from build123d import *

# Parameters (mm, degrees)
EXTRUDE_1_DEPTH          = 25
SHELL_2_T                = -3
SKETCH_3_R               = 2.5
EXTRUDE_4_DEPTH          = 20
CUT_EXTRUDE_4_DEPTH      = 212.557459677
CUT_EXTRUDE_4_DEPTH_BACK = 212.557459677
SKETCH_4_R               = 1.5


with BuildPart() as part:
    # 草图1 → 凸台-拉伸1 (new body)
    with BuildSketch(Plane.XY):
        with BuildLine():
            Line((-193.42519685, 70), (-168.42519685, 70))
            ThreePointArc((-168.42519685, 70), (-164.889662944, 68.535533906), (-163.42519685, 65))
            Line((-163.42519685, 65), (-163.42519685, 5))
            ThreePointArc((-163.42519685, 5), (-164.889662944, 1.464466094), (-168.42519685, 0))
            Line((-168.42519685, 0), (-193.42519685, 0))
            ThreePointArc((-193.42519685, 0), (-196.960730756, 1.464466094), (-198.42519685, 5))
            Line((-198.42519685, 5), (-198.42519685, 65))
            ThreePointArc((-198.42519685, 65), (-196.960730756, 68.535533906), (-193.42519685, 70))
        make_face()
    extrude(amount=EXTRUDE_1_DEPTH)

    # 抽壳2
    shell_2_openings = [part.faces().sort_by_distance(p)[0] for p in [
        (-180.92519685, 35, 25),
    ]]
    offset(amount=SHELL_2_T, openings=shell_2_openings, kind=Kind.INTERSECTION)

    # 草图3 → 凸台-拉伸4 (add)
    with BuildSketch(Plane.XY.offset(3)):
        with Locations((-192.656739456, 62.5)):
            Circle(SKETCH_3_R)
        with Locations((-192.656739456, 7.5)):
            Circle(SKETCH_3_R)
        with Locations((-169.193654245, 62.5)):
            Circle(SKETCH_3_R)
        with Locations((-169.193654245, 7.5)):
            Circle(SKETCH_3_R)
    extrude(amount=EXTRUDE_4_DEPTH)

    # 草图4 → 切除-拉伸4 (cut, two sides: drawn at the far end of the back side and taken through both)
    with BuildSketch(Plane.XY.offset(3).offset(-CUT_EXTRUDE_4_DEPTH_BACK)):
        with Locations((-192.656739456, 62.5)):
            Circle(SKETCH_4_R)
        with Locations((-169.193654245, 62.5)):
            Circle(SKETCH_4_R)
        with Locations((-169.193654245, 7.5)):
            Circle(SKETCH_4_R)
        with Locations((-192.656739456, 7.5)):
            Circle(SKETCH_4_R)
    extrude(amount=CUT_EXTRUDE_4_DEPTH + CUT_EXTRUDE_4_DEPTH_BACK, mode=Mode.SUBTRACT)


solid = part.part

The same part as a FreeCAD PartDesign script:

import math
import FreeCAD as App
import Part
import Sketcher


def faces_at(feature, points):
    """Names of the faces that lie closest to the given points."""
    faces = feature.Shape.Faces
    near = lambda p: min(range(len(faces)), key=lambda i: faces[i].distToShape(Part.Vertex(*p))[0])
    return sorted({f"Face{near(p) + 1}" for p in points})

doc = App.newDocument("Part")
body = doc.addObject("PartDesign::Body", "Body")

# Sketch on XY plane
sketch1 = body.newObject("Sketcher::SketchObject", "Sketch")
sketch1.AttachmentSupport = (doc.getObject("XY_Plane"), [""])
sketch1.MapMode = "FlatFace"
sketch1.addGeometry([
    Part.LineSegment(App.Vector(-168, 70, 0), App.Vector(-193, 70, 0)),  # 0
    Part.ArcOfCircle(Part.Circle(App.Vector(-193, 65, 0), App.Vector(0, 0, 1), 5), math.radians(90), math.radians(180)),  # 1
    Part.LineSegment(App.Vector(-198, 65, 0), App.Vector(-198, 5, 0)),  # 2
    Part.ArcOfCircle(Part.Circle(App.Vector(-193, 5, 0), App.Vector(0, 0, 1), 5), math.radians(180), math.radians(270)),  # 3
    Part.LineSegment(App.Vector(-193, 0, 0), App.Vector(-168, 0, 0)),  # 4
    Part.ArcOfCircle(Part.Circle(App.Vector(-168, 5, 0), App.Vector(0, 0, 1), 5), math.radians(-90), math.radians(0)),  # 5
    Part.LineSegment(App.Vector(-163, 5, 0), App.Vector(-163, 65, 0)),  # 6
    Part.ArcOfCircle(Part.Circle(App.Vector(-168, 65, 0), App.Vector(0, 0, 1), 5), math.radians(0), math.radians(90)),  # 7
], False)
sketch1.addConstraint([
    Sketcher.Constraint("Tangent", 0, 2, 1, 1),
    Sketcher.Constraint("Tangent", 1, 2, 2, 1),
    Sketcher.Constraint("Tangent", 2, 2, 3, 1),
    Sketcher.Constraint("Tangent", 3, 2, 4, 1),
    Sketcher.Constraint("Tangent", 4, 2, 5, 1),
    Sketcher.Constraint("Tangent", 5, 2, 6, 1),
    Sketcher.Constraint("Tangent", 6, 2, 7, 1),
    Sketcher.Constraint("Tangent", 7, 2, 0, 1),
    Sketcher.Constraint("Horizontal", 0),
    Sketcher.Constraint("Vertical", 2),
    Sketcher.Constraint("Horizontal", 4),
    Sketcher.Constraint("Vertical", 6),
    Sketcher.Constraint("Equal", 1, 3),
    Sketcher.Constraint("Equal", 3, 5),
    Sketcher.Constraint("Equal", 5, 7),
    Sketcher.Constraint("PointOnObject", 3, 2, -1),
    Sketcher.Constraint("Radius", 1, 5.0),
    Sketcher.Constraint("DistanceX", 0, 2, 0, 1, 25.0),
    Sketcher.Constraint("DistanceY", 2, 2, 2, 1, 60.0),
    Sketcher.Constraint("DistanceX", 1, 3, -1, 1, 193.425197),
])
pad1 = body.newObject("PartDesign::Pad", "Pad")
pad1.Profile = sketch1
pad1.Length = 25
doc.recompute()

thickness = body.newObject("PartDesign::Thickness", "Thickness")
thickness.Base = (pad1, faces_at(pad1, [(-180.925, 35, 25)]))
thickness.Value = 3
thickness.Reversed = True
thickness.Join = "Intersection"

# Sketch on XY plane
sketch2 = body.newObject("Sketcher::SketchObject", "Sketch001")
sketch2.AttachmentSupport = (doc.getObject("XY_Plane"), [""])
sketch2.MapMode = "FlatFace"
sketch2.AttachmentOffset = App.Placement(App.Vector(0, 0, 3), App.Rotation())
sketch2.addGeometry([
    Part.Circle(App.Vector(-192.7, 62.5, 0), App.Vector(0, 0, 1), 2.5),
    Part.Circle(App.Vector(-192.7, 7.5, 0), App.Vector(0, 0, 1), 2.5),
    Part.Circle(App.Vector(-169.2, 62.5, 0), App.Vector(0, 0, 1), 2.5),
    Part.Circle(App.Vector(-169.2, 7.5, 0), App.Vector(0, 0, 1), 2.5),
], False)
sketch2.addConstraint([
    Sketcher.Constraint("Equal", 0, 1),
    Sketcher.Constraint("Equal", 1, 2),
    Sketcher.Constraint("Equal", 2, 3),
    Sketcher.Constraint("Horizontal", 0, 3, 2, 3),
    Sketcher.Constraint("Horizontal", 1, 3, 3, 3),
    Sketcher.Constraint("Vertical", 0, 3, 1, 3),
    Sketcher.Constraint("Vertical", 2, 3, 3, 3),
    Sketcher.Constraint("Diameter", 0, 5.0),
    Sketcher.Constraint("DistanceY", 1, 3, 0, 3, 55.0),
    Sketcher.Constraint("DistanceY", -1, 1, 0, 3, 62.5),
    Sketcher.Constraint("DistanceX", 0, 3, -1, 1, 192.656739),
    Sketcher.Constraint("DistanceX", 2, 3, -1, 1, 169.193654),
])
pad2 = body.newObject("PartDesign::Pad", "Pad001")
pad2.Profile = sketch2
pad2.Length = 20

# Sketch on XY plane
sketch3 = body.newObject("Sketcher::SketchObject", "Sketch002")
sketch3.AttachmentSupport = (doc.getObject("XY_Plane"), [""])
sketch3.MapMode = "FlatFace"
sketch3.AttachmentOffset = App.Placement(App.Vector(0, 0, 3), App.Rotation())
sketch3.addGeometry([
    Part.Circle(App.Vector(-192.7, 62.5, 0), App.Vector(0, 0, 1), 1.5),
    Part.Circle(App.Vector(-169.2, 62.5, 0), App.Vector(0, 0, 1), 1.5),
    Part.Circle(App.Vector(-169.2, 7.5, 0), App.Vector(0, 0, 1), 1.5),
    Part.Circle(App.Vector(-192.7, 7.5, 0), App.Vector(0, 0, 1), 1.5),
], False)
sketch3.addConstraint([
    Sketcher.Constraint("Equal", 0, 1),
    Sketcher.Constraint("Equal", 1, 2),
    Sketcher.Constraint("Equal", 2, 3),
    Sketcher.Constraint("Horizontal", 0, 3, 1, 3),
    Sketcher.Constraint("Horizontal", 2, 3, 3, 3),
    Sketcher.Constraint("Vertical", 1, 3, 2, 3),
    Sketcher.Constraint("Vertical", 0, 3, 3, 3),
    Sketcher.Constraint("Diameter", 0, 3.0),
    Sketcher.Constraint("DistanceY", 2, 3, 1, 3, 55.0),
    Sketcher.Constraint("DistanceY", -1, 1, 0, 3, 62.5),
    Sketcher.Constraint("DistanceX", 0, 3, -1, 1, 192.656739),
    Sketcher.Constraint("DistanceX", 1, 3, -1, 1, 169.193654),
])
pocket1 = body.newObject("PartDesign::Pocket", "Pocket")
pocket1.Profile = sketch3
pocket1.Type = "ThroughAll"
pocket1.Midplane = True

doc.recompute()
